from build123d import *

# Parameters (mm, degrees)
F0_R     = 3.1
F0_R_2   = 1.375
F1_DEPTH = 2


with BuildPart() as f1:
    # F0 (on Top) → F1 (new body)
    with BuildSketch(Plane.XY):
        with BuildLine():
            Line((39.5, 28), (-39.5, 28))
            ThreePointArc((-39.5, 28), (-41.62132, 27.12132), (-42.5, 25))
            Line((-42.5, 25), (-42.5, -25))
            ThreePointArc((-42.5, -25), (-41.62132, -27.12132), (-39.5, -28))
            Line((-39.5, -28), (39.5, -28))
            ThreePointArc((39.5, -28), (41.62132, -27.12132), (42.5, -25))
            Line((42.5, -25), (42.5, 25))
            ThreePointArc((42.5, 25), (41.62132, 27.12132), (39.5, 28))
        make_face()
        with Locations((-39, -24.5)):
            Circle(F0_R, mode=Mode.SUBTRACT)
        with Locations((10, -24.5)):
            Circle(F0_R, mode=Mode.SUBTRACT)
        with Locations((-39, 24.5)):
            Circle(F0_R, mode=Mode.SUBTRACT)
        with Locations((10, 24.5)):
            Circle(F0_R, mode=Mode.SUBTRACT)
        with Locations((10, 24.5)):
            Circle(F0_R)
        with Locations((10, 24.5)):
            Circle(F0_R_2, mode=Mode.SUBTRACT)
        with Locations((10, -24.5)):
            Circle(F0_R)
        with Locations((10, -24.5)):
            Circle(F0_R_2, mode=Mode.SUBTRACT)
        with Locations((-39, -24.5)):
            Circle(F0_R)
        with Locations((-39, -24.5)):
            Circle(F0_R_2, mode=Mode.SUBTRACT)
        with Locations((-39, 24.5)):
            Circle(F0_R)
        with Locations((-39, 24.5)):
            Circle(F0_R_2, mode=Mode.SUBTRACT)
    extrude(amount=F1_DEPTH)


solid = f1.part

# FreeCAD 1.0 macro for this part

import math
import FreeCAD as App
import Part
import Sketcher
Q = App.Units.Quantity

doc = App.newDocument("Part")
body = doc.addObject("PartDesign::Body", "Body")

sketch1 = body.newObject("Sketcher::SketchObject", "Sketch")
sketch1.AttachmentSupport = (doc.getObject("XY_Plane"), [""])
sketch1.MapMode = "FlatFace"
sketch1.addGeometry([
    Part.LineSegment(App.Vector(39.5, 28, 0), App.Vector(-39.5, 28, 0)),
    Part.ArcOfCircle(Part.Circle(App.Vector(-39.5, 25, 0), App.Vector(0, 0, 1), 3), math.radians(90), math.radians(180)),
    Part.LineSegment(App.Vector(-42.5, 25, 0), App.Vector(-42.5, -25, 0)),
    Part.ArcOfCircle(Part.Circle(App.Vector(-39.5, -25, 0), App.Vector(0, 0, 1), 3), math.radians(-180), math.radians(-90)),
    Part.LineSegment(App.Vector(-39.5, -28, 0), App.Vector(39.5, -28, 0)),
    Part.ArcOfCircle(Part.Circle(App.Vector(39.5, -25, 0), App.Vector(0, 0, 1), 3), math.radians(-90), math.radians(0)),
    Part.LineSegment(App.Vector(42.5, -25, 0), App.Vector(42.5, 25, 0)),
    Part.ArcOfCircle(Part.Circle(App.Vector(39.5, 25, 0), App.Vector(0, 0, 1), 3), math.radians(0), math.radians(90)),
    Part.Circle(App.Vector(-39, -24.5, 0), App.Vector(0, 0, 1), 1.4),
    Part.Circle(App.Vector(10, -24.5, 0), App.Vector(0, 0, 1), 1.4),
    Part.Circle(App.Vector(-39, 24.5, 0), App.Vector(0, 0, 1), 1.4),
    Part.Circle(App.Vector(10, 24.5, 0), App.Vector(0, 0, 1), 1.4),
], False)
sketch1.addConstraint([
    Sketcher.Constraint("Tangent", 0, 2, 1, 1),
    Sketcher.Constraint("Tangent", 1, 2, 2, 1),
    Sketcher.Constraint("Tangent", 2, 2, 3, 1),
    Sketcher.Constraint("Tangent", 3, 2, 4, 1),
    Sketcher.Constraint("Tangent", 4, 2, 5, 1),
    Sketcher.Constraint("Tangent", 5, 2, 6, 1),
    Sketcher.Constraint("Tangent", 6, 2, 7, 1),
    Sketcher.Constraint("Tangent", 7, 2, 0, 1),
    Sketcher.Constraint("Horizontal", 0),
    Sketcher.Constraint("Vertical", 2),
    Sketcher.Constraint("Horizontal", 4),
    Sketcher.Constraint("Vertical", 6),
    Sketcher.Constraint("Equal", 1, 3),
    Sketcher.Constraint("Equal", 3, 5),
    Sketcher.Constraint("Equal", 5, 7),
    Sketcher.Constraint("Equal", 8, 9),
    Sketcher.Constraint("Equal", 9, 10),
    Sketcher.Constraint("Equal", 10, 11),
    Sketcher.Constraint("Symmetric", 1, 3, 5, 3, -1, 1),
    Sketcher.Constraint("Symmetric", 8, 3, 10, 3, -1),
    Sketcher.Constraint("Symmetric", 9, 3, 11, 3, -1),
    Sketcher.Constraint("Horizontal", 8, 3, 9, 3),
    Sketcher.Constraint("Radius", 1, Q("3.000001 mm")),
    Sketcher.Constraint("Diameter", 8, Q("2.75 mm")),
    Sketcher.Constraint("DistanceX", 0, 2, 0, 1, Q("79 mm")),
    Sketcher.Constraint("DistanceY", 2, 2, 2, 1, Q("50 mm")),
    Sketcher.Constraint("DistanceX", 8, 3, -1, 1, Q("39 mm")),
    Sketcher.Constraint("DistanceX", -1, 1, 9, 3, Q("10 mm")),
    Sketcher.Constraint("DistanceY", 8, 3, 10, 3, Q("49 mm")),
])
pad1 = body.newObject("PartDesign::Pad", "Pad")
pad1.Profile = sketch1
pad1.Length = 2

doc.recompute()
